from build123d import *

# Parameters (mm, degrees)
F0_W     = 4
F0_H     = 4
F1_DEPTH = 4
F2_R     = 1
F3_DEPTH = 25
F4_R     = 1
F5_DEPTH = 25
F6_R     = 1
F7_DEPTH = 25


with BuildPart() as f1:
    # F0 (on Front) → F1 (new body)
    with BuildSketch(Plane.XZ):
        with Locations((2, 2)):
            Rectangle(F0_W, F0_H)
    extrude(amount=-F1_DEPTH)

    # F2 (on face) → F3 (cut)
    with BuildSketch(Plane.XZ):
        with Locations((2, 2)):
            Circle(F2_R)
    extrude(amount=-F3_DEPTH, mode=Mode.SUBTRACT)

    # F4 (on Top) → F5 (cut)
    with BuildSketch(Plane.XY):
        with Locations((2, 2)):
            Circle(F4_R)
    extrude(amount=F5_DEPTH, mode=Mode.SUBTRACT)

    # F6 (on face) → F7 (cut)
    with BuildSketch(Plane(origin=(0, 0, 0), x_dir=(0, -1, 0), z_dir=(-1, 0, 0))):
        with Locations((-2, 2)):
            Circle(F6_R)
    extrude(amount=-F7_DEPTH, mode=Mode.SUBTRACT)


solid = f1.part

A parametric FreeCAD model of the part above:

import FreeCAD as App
import Part
import Sketcher

V = App.Vector


def add_polygon(sketch, points):
    """Adds a closed chain of lines whose ends are joined by coincident constraints."""
    first, n = sketch.GeometryCount, len(points)
    for a, b in zip(points, points[1:] + points[:1]):
        sketch.addGeometry(Part.LineSegment(App.Vector(*a, 0), App.Vector(*b, 0)), False)
    for i in range(n):
        sketch.addConstraint(Sketcher.Constraint("Coincident", first + i, 2, first + (i + 1) % n, 1))

doc = App.newDocument("Part")
body = doc.addObject("PartDesign::Body", "Body")

sketch1 = body.newObject("Sketcher::SketchObject", "Sketch")
sketch1.AttachmentSupport = (doc.getObject("XZ_Plane"), [""])
sketch1.MapMode = "FlatFace"
add_polygon(sketch1, [(0, 4), (0, 0), (4, 0), (4, 4)])
sketch1.addConstraint([
    Sketcher.Constraint("Vertical", 0),
    Sketcher.Constraint("Horizontal", 1),
    Sketcher.Constraint("Vertical", 2),
    Sketcher.Constraint("Horizontal", 3),
    Sketcher.Constraint("Coincident", 0, 2, -1, 1),
    Sketcher.Constraint("Equal", 3, 0),
    Sketcher.Constraint("DistanceX", 1, 1, 1, 2, 4.0),
])
pad1 = body.newObject("PartDesign::Pad", "Pad")
pad1.Profile = sketch1
pad1.Length = 4
pad1.Reversed = True

sketch2 = body.newObject("Sketcher::SketchObject", "Sketch001")
sketch2.AttachmentSupport = (doc.getObject("XZ_Plane"), [""])
sketch2.MapMode = "FlatFace"
sketch2.addGeometry(Part.Circle(V(2, 2, 0), V(0, 0, 1), 1), False)
sketch2.addConstraint([
    Sketcher.Constraint("Diameter", 0, 2.0),
    Sketcher.Constraint("DistanceX", -1, 1, 0, 3, 2.0),
    Sketcher.Constraint("DistanceY", -1, 1, 0, 3, 2.0),
])
pocket1 = body.newObject("PartDesign::Pocket", "Pocket")
pocket1.Profile = sketch2
pocket1.Length = 25

sketch3 = body.newObject("Sketcher::SketchObject", "Sketch002")
sketch3.AttachmentSupport = (doc.getObject("XY_Plane"), [""])
sketch3.MapMode = "FlatFace"
sketch3.addGeometry(Part.Circle(V(2, 2, 0), V(0, 0, 1), 1), False)
sketch3.addConstraint([
    Sketcher.Constraint("Diameter", 0, 2.0),
    Sketcher.Constraint("DistanceX", -1, 1, 0, 3, 2.0),
    Sketcher.Constraint("DistanceY", -1, 1, 0, 3, 2.0),
])
pocket2 = body.newObject("PartDesign::Pocket", "Pocket001")
pocket2.Profile = sketch3
pocket2.Length = 25
pocket2.Reversed = True

sketch4 = body.newObject("Sketcher::SketchObject", "Sketch003")
sketch4.AttachmentSupport = (doc.getObject("YZ_Plane"), [""])
sketch4.MapMode = "FlatFace"
sketch4.addGeometry(Part.Circle(V(2, 2, 0), V(0, 0, 1), 1), False)
sketch4.addConstraint([
    Sketcher.Constraint("Diameter", 0, 2.0),
    Sketcher.Constraint("DistanceX", -1, 1, 0, 3, 2.0),
    Sketcher.Constraint("DistanceY", -1, 1, 0, 3, 2.0),
])
pocket3 = body.newObject("PartDesign::Pocket", "Pocket002")
pocket3.Profile = sketch4
pocket3.Length = 25
pocket3.Reversed = True

doc.recompute()
